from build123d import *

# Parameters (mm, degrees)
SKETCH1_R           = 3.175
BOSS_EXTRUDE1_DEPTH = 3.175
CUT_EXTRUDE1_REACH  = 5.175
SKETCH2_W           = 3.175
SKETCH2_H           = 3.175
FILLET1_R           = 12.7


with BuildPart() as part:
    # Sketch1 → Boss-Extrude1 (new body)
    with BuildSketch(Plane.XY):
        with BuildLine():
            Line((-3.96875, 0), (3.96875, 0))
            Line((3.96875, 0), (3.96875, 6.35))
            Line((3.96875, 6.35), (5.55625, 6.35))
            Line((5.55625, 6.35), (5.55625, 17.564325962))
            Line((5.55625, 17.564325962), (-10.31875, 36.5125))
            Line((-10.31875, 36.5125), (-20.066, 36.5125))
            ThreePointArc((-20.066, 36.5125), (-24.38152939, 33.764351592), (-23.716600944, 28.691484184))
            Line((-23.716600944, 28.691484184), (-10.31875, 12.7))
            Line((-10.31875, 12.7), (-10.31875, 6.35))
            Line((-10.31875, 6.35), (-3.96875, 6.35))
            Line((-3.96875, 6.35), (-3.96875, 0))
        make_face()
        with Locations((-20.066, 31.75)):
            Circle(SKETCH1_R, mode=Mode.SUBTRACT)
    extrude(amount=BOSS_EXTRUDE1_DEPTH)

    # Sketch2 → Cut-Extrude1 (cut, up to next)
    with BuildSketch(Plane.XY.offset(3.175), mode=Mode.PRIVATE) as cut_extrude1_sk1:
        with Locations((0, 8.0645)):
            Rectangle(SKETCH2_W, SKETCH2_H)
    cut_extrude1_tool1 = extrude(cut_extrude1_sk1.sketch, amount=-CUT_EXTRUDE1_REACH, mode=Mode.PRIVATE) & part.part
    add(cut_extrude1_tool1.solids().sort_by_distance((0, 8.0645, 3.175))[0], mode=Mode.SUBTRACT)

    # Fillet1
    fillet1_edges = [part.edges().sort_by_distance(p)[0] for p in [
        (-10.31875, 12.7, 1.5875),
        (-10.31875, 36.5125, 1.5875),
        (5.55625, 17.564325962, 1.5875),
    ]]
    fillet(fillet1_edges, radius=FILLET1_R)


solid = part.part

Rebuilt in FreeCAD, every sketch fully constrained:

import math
import FreeCAD as App
import Part
import Sketcher
from FreeCAD import Vector
Q = App.Units.Quantity


def edges_at(feature, points):
    """Names of the edges that pass closest to the given points."""
    edges = feature.Shape.Edges
    near = lambda p: min(range(len(edges)), key=lambda i: edges[i].distToShape(Part.Vertex(*p))[0])
    return sorted({f"Edge{near(p) + 1}" for p in points})


def add_polygon(sketch, points):
    """Adds a closed chain of lines whose ends are joined by coincident constraints."""
    first, n = sketch.GeometryCount, len(points)
    for a, b in zip(points, points[1:] + points[:1]):
        sketch.addGeometry(Part.LineSegment(App.Vector(*a, 0), App.Vector(*b, 0)), False)
    for i in range(n):
        sketch.addConstraint(Sketcher.Constraint("Coincident", first + i, 2, first + (i + 1) % n, 1))

doc = App.newDocument("Part")
body = doc.addObject("PartDesign::Body", "Body")

# Sketch on XY plane
sketch1 = doc.addObject("Sketcher::SketchObject", "Sketch")
body.addObject(sketch1)
sketch1.AttachmentSupport = (doc.XY_Plane, [""])
sketch1.MapMode = "FlatFace"
sketch1.addGeometry(Part.LineSegment(Vector(-4, 0, 0), Vector(4, 0, 0)), False)
sketch1.addGeometry(Part.LineSegment(Vector(4, 0, 0), Vector(4, 6.3, 0)), False)
sketch1.addGeometry(Part.LineSegment(Vector(4, 6.3, 0), Vector(5.6, 6.3, 0)), False)
sketch1.addGeometry(Part.LineSegment(Vector(5.6, 6.3, 0), Vector(5.6, 17.6, 0)), False)
sketch1.addGeometry(Part.LineSegment(Vector(5.6, 17.6, 0), Vector(-10.3, 36.5, 0)), False)
sketch1.addGeometry(Part.LineSegment(Vector(-10.3, 36.5, 0), Vector(-20.1, 36.5, 0)), False)
sketch1.addGeometry(Part.ArcOfCircle(Part.Circle(Vector(-20.1, 31.8, 0), Vector(0, 0, 1), 4.8), math.radians(90), math.radians(220)), False)
sketch1.addGeometry(Part.LineSegment(Vector(-23.7, 28.7, 0), Vector(-10.3, 12.7, 0)), False)
sketch1.addGeometry(Part.LineSegment(Vector(-10.3, 12.7, 0), Vector(-10.3, 6.3, 0)), False)
sketch1.addGeometry(Part.LineSegment(Vector(-10.3, 6.3, 0), Vector(-4, 6.3, 0)), False)
sketch1.addGeometry(Part.LineSegment(Vector(-4, 6.3, 0), Vector(-4, 0, 0)), False)
sketch1.addGeometry(Part.Circle(Vector(-20.1, 31.8, 0), Vector(0, 0, 1), 3.2), False)
sketch1.addConstraint(Sketcher.Constraint("Coincident", 0, 2, 1, 1))
sketch1.addConstraint(Sketcher.Constraint("Coincident", 1, 2, 2, 1))
sketch1.addConstraint(Sketcher.Constraint("Coincident", 2, 2, 3, 1))
sketch1.addConstraint(Sketcher.Constraint("Coincident", 3, 2, 4, 1))
sketch1.addConstraint(Sketcher.Constraint("Coincident", 4, 2, 5, 1))
sketch1.addConstraint(Sketcher.Constraint("Tangent", 5, 2, 6, 1))
sketch1.addConstraint(Sketcher.Constraint("Tangent", 6, 2, 7, 1))
sketch1.addConstraint(Sketcher.Constraint("Coincident", 7, 2, 8, 1))
sketch1.addConstraint(Sketcher.Constraint("Coincident", 8, 2, 9, 1))
sketch1.addConstraint(Sketcher.Constraint("Coincident", 9, 2, 10, 1))
sketch1.addConstraint(Sketcher.Constraint("Coincident", 10, 2, 0, 1))
sketch1.addConstraint(Sketcher.Constraint("Horizontal", 0))
sketch1.addConstraint(Sketcher.Constraint("Vertical", 1))
sketch1.addConstraint(Sketcher.Constraint("Horizontal", 2))
sketch1.addConstraint(Sketcher.Constraint("Vertical", 3))
sketch1.addConstraint(Sketcher.Constraint("Horizontal", 5))
sketch1.addConstraint(Sketcher.Constraint("Vertical", 8))
sketch1.addConstraint(Sketcher.Constraint("Horizontal", 9))
sketch1.addConstraint(Sketcher.Constraint("Vertical", 10))
sketch1.addConstraint(Sketcher.Constraint("Coincident", 11, 3, 6, 3))
sketch1.addConstraint(Sketcher.Constraint("Symmetric", 0, 2, 10, 2, -1, 1))
sketch1.addConstraint(Sketcher.Constraint("Parallel", 4, 7))
sketch1.addConstraint(Sketcher.Constraint("Horizontal", 2, 2, 8, 2))
sketch1.addConstraint(Sketcher.Constraint("Vertical", 4, 2, 7, 2))
sketch1.addConstraint(Sketcher.Constraint("Equal", 9, 1))
sketch1.addConstraint(Sketcher.Constraint("Equal", 1, 8))
sketch1.addConstraint(Sketcher.Constraint("Diameter", 11, Q("0.25 in")))
sketch1.addConstraint(Sketcher.Constraint("Radius", 6, Q("0.1875 in")))
sketch1.addConstraint(Sketcher.Constraint("DistanceY", 1, 2, 6, 3, Q("1 in")))
sketch1.addConstraint(Sketcher.Constraint("DistanceX", 9, 1, 9, 2, Q("0.25 in")))
sketch1.addConstraint(Sketcher.Constraint("DistanceX", 0, 1, 0, 2, Q("0.3125 in")))
sketch1.addConstraint(Sketcher.Constraint("DistanceX", 2, 1, 2, 2, Q("0.0625 in")))
sketch1.addConstraint(Sketcher.Constraint("DistanceX", 6, 3, -1, 1, Q("0.79 in")))
pad1 = doc.addObject("PartDesign::Pad", "Pad")
body.addObject(pad1)
pad1.Profile = sketch1
pad1.Length = Q("0.125 in")

# Sketch on XY plane
sketch2 = doc.addObject("Sketcher::SketchObject", "Sketch001")
body.addObject(sketch2)
sketch2.AttachmentSupport = (doc.XY_Plane, [""])
sketch2.MapMode = "FlatFace"
sketch2.AttachmentOffset = App.Placement(Vector(0, 0, 0.125 * 25.4), App.Rotation())
add_polygon(sketch2, [(-1.6, 9.7), (-1.6, 6.5), (1.6, 6.5), (1.6, 9.7)])  # lines 0-3
sketch2.addConstraint(Sketcher.Constraint("Vertical", 0))
sketch2.addConstraint(Sketcher.Constraint("Horizontal", 1))
sketch2.addConstraint(Sketcher.Constraint("Vertical", 2))
sketch2.addConstraint(Sketcher.Constraint("Horizontal", 3))
sketch2.addConstraint(Sketcher.Constraint("Equal", 3, 0))
sketch2.addConstraint(Sketcher.Constraint("DistanceX", 1, 1, 1, 2, Q("0.125 in")))
sketch2.addConstraint(Sketcher.Constraint("DistanceY", -1, 1, 2, 2, Q("0.38 in")))
sketch2.addConstraint(Sketcher.Constraint("DistanceX", 0, 2, -1, 1, Q("0.0625 in")))
pocket1 = doc.addObject("PartDesign::Pocket", "Pocket")
body.addObject(pocket1)
pocket1.Profile = sketch2
pocket1.Type = "UpToFirst"
doc.recompute()

fillet = doc.addObject("PartDesign::Fillet", "Fillet")
body.addObject(fillet)
fillet.Base = (pocket1, edges_at(pocket1, [(-10.319, 12.7, 1.587), (-10.319, 36.513, 1.587), (5.556, 17.564, 1.587)]))
fillet.Radius = Q("0.5 in")

doc.recompute()
